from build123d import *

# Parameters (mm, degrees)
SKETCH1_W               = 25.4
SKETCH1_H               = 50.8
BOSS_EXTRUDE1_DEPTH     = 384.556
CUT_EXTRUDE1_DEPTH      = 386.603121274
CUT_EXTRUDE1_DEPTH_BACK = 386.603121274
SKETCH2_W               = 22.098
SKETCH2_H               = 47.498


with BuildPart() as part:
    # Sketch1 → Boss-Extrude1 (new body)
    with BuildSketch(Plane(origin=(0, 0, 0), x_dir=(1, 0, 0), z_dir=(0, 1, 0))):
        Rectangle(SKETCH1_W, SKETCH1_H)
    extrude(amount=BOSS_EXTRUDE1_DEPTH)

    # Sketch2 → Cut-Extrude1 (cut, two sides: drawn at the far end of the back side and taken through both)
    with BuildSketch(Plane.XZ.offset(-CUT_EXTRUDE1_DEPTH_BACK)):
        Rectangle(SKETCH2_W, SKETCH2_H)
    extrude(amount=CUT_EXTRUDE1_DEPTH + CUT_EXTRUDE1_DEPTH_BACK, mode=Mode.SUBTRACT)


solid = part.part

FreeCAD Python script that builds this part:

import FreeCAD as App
import Part
import Sketcher

V = App.Vector
Q = App.Units.Quantity

doc = App.newDocument("Part")
body = doc.addObject("PartDesign::Body", "Body")

sketch1 = doc.addObject("Sketcher::SketchObject", "Sketch")
body.addObject(sketch1)
sketch1.AttachmentSupport = (doc.XZ_Plane, [""])
sketch1.MapMode = "FlatFace"
sketch1.addGeometry(Part.LineSegment(V(-12.7, -25.4, 0), V(-12.7, 25.4, 0)), False)
sketch1.addGeometry(Part.LineSegment(V(-12.7, 25.4, 0), V(12.7, 25.4, 0)), False)
sketch1.addGeometry(Part.LineSegment(V(12.7, 25.4, 0), V(12.7, -25.4, 0)), False)
sketch1.addGeometry(Part.LineSegment(V(12.7, -25.4, 0), V(-12.7, -25.4, 0)), False)
sketch1.addConstraint(Sketcher.Constraint("Coincident", 0, 2, 1, 1))
sketch1.addConstraint(Sketcher.Constraint("Coincident", 1, 2, 2, 1))
sketch1.addConstraint(Sketcher.Constraint("Coincident", 2, 2, 3, 1))
sketch1.addConstraint(Sketcher.Constraint("Coincident", 3, 2, 0, 1))
sketch1.addConstraint(Sketcher.Constraint("Vertical", 0))
sketch1.addConstraint(Sketcher.Constraint("Horizontal", 1))
sketch1.addConstraint(Sketcher.Constraint("Vertical", 2))
sketch1.addConstraint(Sketcher.Constraint("Horizontal", 3))
sketch1.addConstraint(Sketcher.Constraint("Symmetric", 0, 2, 2, 2, -1, 1))
sketch1.addConstraint(Sketcher.Constraint("DistanceX", 1, 1, 1, 2, Q("1 in")))
sketch1.addConstraint(Sketcher.Constraint("DistanceY", 0, 1, 0, 2, Q("2 in")))
pad1 = doc.addObject("PartDesign::Pad", "Pad")
body.addObject(pad1)
pad1.Profile = sketch1
pad1.Length = Q("15.14 in")
pad1.Reversed = True

sketch2 = doc.addObject("Sketcher::SketchObject", "Sketch001")
body.addObject(sketch2)
sketch2.AttachmentSupport = (doc.XZ_Plane, [""])
sketch2.MapMode = "FlatFace"
sketch2.addGeometry(Part.LineSegment(V(-11.049, 23.749, 0), V(-11.049, -23.749, 0)), False)
sketch2.addGeometry(Part.LineSegment(V(-11.049, -23.749, 0), V(11.049, -23.749, 0)), False)
sketch2.addGeometry(Part.LineSegment(V(11.049, -23.749, 0), V(11.049, 23.749, 0)), False)
sketch2.addGeometry(Part.LineSegment(V(11.049, 23.749, 0), V(-11.049, 23.749, 0)), False)
sketch2.addConstraint(Sketcher.Constraint("Coincident", 0, 2, 1, 1))
sketch2.addConstraint(Sketcher.Constraint("Coincident", 1, 2, 2, 1))
sketch2.addConstraint(Sketcher.Constraint("Coincident", 2, 2, 3, 1))
sketch2.addConstraint(Sketcher.Constraint("Coincident", 3, 2, 0, 1))
sketch2.addConstraint(Sketcher.Constraint("Vertical", 0))
sketch2.addConstraint(Sketcher.Constraint("Horizontal", 1))
sketch2.addConstraint(Sketcher.Constraint("Vertical", 2))
sketch2.addConstraint(Sketcher.Constraint("Horizontal", 3))
sketch2.addConstraint(Sketcher.Constraint("Symmetric", 0, 2, 2, 2, -1, 1))
sketch2.addConstraint(Sketcher.Constraint("DistanceX", 1, 1, 1, 2, Q("0.87 in")))
sketch2.addConstraint(Sketcher.Constraint("DistanceY", 0, 2, 0, 1, Q("1.87 in")))
pocket1 = doc.addObject("PartDesign::Pocket", "Pocket")
body.addObject(pocket1)
pocket1.Profile = sketch2
pocket1.Type = "ThroughAll"
pocket1.Midplane = True

doc.recompute()
